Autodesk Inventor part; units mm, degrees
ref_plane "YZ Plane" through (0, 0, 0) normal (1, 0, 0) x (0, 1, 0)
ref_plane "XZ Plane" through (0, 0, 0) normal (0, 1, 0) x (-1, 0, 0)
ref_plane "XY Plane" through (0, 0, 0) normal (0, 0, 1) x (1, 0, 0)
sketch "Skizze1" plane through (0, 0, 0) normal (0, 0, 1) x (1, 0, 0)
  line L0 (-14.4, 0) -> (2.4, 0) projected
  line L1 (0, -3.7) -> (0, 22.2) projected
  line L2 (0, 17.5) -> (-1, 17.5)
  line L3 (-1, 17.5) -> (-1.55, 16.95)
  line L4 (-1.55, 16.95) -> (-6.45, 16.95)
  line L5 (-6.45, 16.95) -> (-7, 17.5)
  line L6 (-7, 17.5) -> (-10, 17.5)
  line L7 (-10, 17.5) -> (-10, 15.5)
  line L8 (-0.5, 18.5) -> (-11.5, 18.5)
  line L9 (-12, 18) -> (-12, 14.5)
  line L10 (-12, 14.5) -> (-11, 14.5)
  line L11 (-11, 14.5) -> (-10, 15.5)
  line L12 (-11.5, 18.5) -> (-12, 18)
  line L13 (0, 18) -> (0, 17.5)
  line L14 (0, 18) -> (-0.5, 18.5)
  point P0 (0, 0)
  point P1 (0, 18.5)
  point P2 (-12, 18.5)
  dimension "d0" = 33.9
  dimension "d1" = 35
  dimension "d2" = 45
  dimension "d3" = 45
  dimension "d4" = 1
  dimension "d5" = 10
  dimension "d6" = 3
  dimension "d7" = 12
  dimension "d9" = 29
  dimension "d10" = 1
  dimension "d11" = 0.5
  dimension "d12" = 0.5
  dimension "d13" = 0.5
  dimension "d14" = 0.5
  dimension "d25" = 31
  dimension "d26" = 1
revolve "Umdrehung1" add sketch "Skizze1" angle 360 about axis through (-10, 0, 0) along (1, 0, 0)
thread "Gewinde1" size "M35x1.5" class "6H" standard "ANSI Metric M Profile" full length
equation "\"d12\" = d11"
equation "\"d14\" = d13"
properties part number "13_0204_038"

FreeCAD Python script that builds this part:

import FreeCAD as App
import Part
import Sketcher
from FreeCAD import Vector
Q = App.Units.Quantity

doc = App.newDocument("Part")
params = doc.addObject("Spreadsheet::Sheet", "Params")
for row, (alias, value) in enumerate([
    ("sketch1_width", "1 mm"),
    ("sketch1_width2", "3 mm"),
    ("sketch1_height", "0.5 mm"),
    ("sketch1_width3", "4.9 mm"),
    ("revolution_angle", "360 deg"),
], start=1):
    params.set(f"A{row}", alias)
    params.set(f"B{row}", "=" + value)
    params.setAlias(f"B{row}", alias)

body = doc.addObject("PartDesign::Body", "Body")

# Sketch on XY plane
sketch1 = body.newObject("Sketcher::SketchObject", "Sketch")
sketch1.AttachmentSupport = (doc.getObject("XY_Plane"), [""])
sketch1.MapMode = "FlatFace"
sketch1.addGeometry([
    Part.LineSegment(Vector(-1, 17.5, 0), Vector(0, 17.5, 0)),  # 0
    Part.LineSegment(Vector(0, 17.5, 0), Vector(0, 18, 0)),  # 1
    Part.LineSegment(Vector(0, 18, 0), Vector(-0.5, 18.5, 0)),  # 2
    Part.LineSegment(Vector(-0.5, 18.5, 0), Vector(-11.5, 18.5, 0)),  # 3
    Part.LineSegment(Vector(-11.5, 18.5, 0), Vector(-12, 18, 0)),  # 4
    Part.LineSegment(Vector(-12, 18, 0), Vector(-12, 14.5, 0)),  # 5
    Part.LineSegment(Vector(-12, 14.5, 0), Vector(-11, 14.5, 0)),  # 6
    Part.LineSegment(Vector(-11, 14.5, 0), Vector(-10, 15.5, 0)),  # 7
    Part.LineSegment(Vector(-10, 15.5, 0), Vector(-10, 17.5, 0)),  # 8
    Part.LineSegment(Vector(-10, 17.5, 0), Vector(-7, 17.5, 0)),  # 9
    Part.LineSegment(Vector(-7, 17.5, 0), Vector(-6.5, 16.9, 0)),  # 10
    Part.LineSegment(Vector(-6.5, 16.9, 0), Vector(-1.6, 16.9, 0)),  # 11
    Part.LineSegment(Vector(-1.6, 16.9, 0), Vector(-1, 17.5, 0)),  # 12
], False)
sketch1.addConstraint([
    Sketcher.Constraint("Coincident", 0, 2, 1, 1),
    Sketcher.Constraint("Coincident", 1, 2, 2, 1),
    Sketcher.Constraint("Coincident", 2, 2, 3, 1),
    Sketcher.Constraint("Coincident", 3, 2, 4, 1),
    Sketcher.Constraint("Coincident", 4, 2, 5, 1),
    Sketcher.Constraint("Coincident", 5, 2, 6, 1),
    Sketcher.Constraint("Coincident", 6, 2, 7, 1),
    Sketcher.Constraint("Coincident", 7, 2, 8, 1),
    Sketcher.Constraint("Coincident", 8, 2, 9, 1),
    Sketcher.Constraint("Coincident", 9, 2, 10, 1),
    Sketcher.Constraint("Coincident", 10, 2, 11, 1),
    Sketcher.Constraint("Coincident", 11, 2, 12, 1),
    Sketcher.Constraint("Coincident", 12, 2, 0, 1),
    Sketcher.Constraint("Horizontal", 0),
    Sketcher.Constraint("Vertical", 1),
    Sketcher.Constraint("Horizontal", 3),
    Sketcher.Constraint("Vertical", 5),
    Sketcher.Constraint("Horizontal", 6),
    Sketcher.Constraint("Vertical", 8),
    Sketcher.Constraint("Horizontal", 9),
    Sketcher.Constraint("Horizontal", 11),
    Sketcher.Constraint("PointOnObject", 0, 2, -2),
    Sketcher.Constraint("Perpendicular", 2, 4),
    Sketcher.Constraint("Parallel", 4, 7),
    Sketcher.Constraint("Perpendicular", 7, 10),
    Sketcher.Constraint("Perpendicular", 10, 12),
    Sketcher.Constraint("Horizontal", 1, 2, 4, 2),
    Sketcher.Constraint("Horizontal", 0, 2, 8, 2),
    Sketcher.Constraint("Equal", 0, 6),
    Sketcher.Constraint("Equal", 2, 4),
    Sketcher.Constraint("DistanceX", 0, 1, 0, 2, Q("1 mm")),
    Sketcher.Constraint("DistanceX", 9, 1, 9, 2, Q("3 mm")),
    Sketcher.Constraint("DistanceY", 1, 1, 1, 2, Q("0.5 mm")),
    Sketcher.Constraint("DistanceX", 4, 2, -1, 1, Q("12 mm")),
    Sketcher.Constraint("DistanceX", 7, 2, -1, 1, Q("10 mm")),
    Sketcher.Constraint("DistanceY", 0, 2, 2, 2, Q("1 mm")),
    Sketcher.Constraint("DistanceY", 5, 2, 0, 2, Q("3 mm")),
    Sketcher.Constraint("DistanceX", 11, 1, 11, 2, Q("4.9 mm")),
    Sketcher.Constraint("DistanceY", -1, 1, 1, 2, Q("18 mm")),
])
sketch1.setExpression("Constraints[30]", "Params.sketch1_width")
sketch1.setExpression("Constraints[31]", "Params.sketch1_width2")
sketch1.setExpression("Constraints[32]", "Params.sketch1_height")
sketch1.setExpression("Constraints[37]", "Params.sketch1_width3")
revolution = body.newObject("PartDesign::Revolution", "Revolution")
revolution.Profile = sketch1
revolution.ReferenceAxis = (sketch1, ["H_Axis"])
revolution.setExpression("Angle", "Params.revolution_angle")

doc.recompute()
